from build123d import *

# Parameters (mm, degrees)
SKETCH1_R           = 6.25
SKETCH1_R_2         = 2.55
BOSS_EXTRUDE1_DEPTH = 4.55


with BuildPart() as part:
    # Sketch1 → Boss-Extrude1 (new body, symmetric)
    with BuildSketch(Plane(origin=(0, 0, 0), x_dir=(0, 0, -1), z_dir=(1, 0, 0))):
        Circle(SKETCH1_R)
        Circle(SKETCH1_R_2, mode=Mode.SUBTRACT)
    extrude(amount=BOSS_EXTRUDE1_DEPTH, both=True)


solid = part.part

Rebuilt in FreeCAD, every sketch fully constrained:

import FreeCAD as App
import Part
import Sketcher
from FreeCAD import Vector
Q = App.Units.Quantity

doc = App.newDocument("Part")
body = doc.addObject("PartDesign::Body", "Body")

# Sketch on YZ plane
sketch1 = doc.addObject("Sketcher::SketchObject", "Sketch")
body.addObject(sketch1)
sketch1.AttachmentSupport = (doc.YZ_Plane, [""])
sketch1.MapMode = "FlatFace"
sketch1.addGeometry([
    Part.Circle(Vector(0, 0, 0), Vector(0, 0, 1), 6.2),
    Part.Circle(Vector(0, 0, 0), Vector(0, 0, 1), 2.5),
], False)
sketch1.addConstraint([
    Sketcher.Constraint("Coincident", 0, 3, -1, 1),
    Sketcher.Constraint("Coincident", 1, 3, -1, 1),
    Sketcher.Constraint("Diameter", 0, Q("12.5 mm")),
    Sketcher.Constraint("Diameter", 1, Q("5.1 mm")),
])
pad1 = doc.addObject("PartDesign::Pad", "Pad")
body.addObject(pad1)
pad1.Profile = sketch1
pad1.Length = 9.1
pad1.Midplane = True

doc.recompute()
